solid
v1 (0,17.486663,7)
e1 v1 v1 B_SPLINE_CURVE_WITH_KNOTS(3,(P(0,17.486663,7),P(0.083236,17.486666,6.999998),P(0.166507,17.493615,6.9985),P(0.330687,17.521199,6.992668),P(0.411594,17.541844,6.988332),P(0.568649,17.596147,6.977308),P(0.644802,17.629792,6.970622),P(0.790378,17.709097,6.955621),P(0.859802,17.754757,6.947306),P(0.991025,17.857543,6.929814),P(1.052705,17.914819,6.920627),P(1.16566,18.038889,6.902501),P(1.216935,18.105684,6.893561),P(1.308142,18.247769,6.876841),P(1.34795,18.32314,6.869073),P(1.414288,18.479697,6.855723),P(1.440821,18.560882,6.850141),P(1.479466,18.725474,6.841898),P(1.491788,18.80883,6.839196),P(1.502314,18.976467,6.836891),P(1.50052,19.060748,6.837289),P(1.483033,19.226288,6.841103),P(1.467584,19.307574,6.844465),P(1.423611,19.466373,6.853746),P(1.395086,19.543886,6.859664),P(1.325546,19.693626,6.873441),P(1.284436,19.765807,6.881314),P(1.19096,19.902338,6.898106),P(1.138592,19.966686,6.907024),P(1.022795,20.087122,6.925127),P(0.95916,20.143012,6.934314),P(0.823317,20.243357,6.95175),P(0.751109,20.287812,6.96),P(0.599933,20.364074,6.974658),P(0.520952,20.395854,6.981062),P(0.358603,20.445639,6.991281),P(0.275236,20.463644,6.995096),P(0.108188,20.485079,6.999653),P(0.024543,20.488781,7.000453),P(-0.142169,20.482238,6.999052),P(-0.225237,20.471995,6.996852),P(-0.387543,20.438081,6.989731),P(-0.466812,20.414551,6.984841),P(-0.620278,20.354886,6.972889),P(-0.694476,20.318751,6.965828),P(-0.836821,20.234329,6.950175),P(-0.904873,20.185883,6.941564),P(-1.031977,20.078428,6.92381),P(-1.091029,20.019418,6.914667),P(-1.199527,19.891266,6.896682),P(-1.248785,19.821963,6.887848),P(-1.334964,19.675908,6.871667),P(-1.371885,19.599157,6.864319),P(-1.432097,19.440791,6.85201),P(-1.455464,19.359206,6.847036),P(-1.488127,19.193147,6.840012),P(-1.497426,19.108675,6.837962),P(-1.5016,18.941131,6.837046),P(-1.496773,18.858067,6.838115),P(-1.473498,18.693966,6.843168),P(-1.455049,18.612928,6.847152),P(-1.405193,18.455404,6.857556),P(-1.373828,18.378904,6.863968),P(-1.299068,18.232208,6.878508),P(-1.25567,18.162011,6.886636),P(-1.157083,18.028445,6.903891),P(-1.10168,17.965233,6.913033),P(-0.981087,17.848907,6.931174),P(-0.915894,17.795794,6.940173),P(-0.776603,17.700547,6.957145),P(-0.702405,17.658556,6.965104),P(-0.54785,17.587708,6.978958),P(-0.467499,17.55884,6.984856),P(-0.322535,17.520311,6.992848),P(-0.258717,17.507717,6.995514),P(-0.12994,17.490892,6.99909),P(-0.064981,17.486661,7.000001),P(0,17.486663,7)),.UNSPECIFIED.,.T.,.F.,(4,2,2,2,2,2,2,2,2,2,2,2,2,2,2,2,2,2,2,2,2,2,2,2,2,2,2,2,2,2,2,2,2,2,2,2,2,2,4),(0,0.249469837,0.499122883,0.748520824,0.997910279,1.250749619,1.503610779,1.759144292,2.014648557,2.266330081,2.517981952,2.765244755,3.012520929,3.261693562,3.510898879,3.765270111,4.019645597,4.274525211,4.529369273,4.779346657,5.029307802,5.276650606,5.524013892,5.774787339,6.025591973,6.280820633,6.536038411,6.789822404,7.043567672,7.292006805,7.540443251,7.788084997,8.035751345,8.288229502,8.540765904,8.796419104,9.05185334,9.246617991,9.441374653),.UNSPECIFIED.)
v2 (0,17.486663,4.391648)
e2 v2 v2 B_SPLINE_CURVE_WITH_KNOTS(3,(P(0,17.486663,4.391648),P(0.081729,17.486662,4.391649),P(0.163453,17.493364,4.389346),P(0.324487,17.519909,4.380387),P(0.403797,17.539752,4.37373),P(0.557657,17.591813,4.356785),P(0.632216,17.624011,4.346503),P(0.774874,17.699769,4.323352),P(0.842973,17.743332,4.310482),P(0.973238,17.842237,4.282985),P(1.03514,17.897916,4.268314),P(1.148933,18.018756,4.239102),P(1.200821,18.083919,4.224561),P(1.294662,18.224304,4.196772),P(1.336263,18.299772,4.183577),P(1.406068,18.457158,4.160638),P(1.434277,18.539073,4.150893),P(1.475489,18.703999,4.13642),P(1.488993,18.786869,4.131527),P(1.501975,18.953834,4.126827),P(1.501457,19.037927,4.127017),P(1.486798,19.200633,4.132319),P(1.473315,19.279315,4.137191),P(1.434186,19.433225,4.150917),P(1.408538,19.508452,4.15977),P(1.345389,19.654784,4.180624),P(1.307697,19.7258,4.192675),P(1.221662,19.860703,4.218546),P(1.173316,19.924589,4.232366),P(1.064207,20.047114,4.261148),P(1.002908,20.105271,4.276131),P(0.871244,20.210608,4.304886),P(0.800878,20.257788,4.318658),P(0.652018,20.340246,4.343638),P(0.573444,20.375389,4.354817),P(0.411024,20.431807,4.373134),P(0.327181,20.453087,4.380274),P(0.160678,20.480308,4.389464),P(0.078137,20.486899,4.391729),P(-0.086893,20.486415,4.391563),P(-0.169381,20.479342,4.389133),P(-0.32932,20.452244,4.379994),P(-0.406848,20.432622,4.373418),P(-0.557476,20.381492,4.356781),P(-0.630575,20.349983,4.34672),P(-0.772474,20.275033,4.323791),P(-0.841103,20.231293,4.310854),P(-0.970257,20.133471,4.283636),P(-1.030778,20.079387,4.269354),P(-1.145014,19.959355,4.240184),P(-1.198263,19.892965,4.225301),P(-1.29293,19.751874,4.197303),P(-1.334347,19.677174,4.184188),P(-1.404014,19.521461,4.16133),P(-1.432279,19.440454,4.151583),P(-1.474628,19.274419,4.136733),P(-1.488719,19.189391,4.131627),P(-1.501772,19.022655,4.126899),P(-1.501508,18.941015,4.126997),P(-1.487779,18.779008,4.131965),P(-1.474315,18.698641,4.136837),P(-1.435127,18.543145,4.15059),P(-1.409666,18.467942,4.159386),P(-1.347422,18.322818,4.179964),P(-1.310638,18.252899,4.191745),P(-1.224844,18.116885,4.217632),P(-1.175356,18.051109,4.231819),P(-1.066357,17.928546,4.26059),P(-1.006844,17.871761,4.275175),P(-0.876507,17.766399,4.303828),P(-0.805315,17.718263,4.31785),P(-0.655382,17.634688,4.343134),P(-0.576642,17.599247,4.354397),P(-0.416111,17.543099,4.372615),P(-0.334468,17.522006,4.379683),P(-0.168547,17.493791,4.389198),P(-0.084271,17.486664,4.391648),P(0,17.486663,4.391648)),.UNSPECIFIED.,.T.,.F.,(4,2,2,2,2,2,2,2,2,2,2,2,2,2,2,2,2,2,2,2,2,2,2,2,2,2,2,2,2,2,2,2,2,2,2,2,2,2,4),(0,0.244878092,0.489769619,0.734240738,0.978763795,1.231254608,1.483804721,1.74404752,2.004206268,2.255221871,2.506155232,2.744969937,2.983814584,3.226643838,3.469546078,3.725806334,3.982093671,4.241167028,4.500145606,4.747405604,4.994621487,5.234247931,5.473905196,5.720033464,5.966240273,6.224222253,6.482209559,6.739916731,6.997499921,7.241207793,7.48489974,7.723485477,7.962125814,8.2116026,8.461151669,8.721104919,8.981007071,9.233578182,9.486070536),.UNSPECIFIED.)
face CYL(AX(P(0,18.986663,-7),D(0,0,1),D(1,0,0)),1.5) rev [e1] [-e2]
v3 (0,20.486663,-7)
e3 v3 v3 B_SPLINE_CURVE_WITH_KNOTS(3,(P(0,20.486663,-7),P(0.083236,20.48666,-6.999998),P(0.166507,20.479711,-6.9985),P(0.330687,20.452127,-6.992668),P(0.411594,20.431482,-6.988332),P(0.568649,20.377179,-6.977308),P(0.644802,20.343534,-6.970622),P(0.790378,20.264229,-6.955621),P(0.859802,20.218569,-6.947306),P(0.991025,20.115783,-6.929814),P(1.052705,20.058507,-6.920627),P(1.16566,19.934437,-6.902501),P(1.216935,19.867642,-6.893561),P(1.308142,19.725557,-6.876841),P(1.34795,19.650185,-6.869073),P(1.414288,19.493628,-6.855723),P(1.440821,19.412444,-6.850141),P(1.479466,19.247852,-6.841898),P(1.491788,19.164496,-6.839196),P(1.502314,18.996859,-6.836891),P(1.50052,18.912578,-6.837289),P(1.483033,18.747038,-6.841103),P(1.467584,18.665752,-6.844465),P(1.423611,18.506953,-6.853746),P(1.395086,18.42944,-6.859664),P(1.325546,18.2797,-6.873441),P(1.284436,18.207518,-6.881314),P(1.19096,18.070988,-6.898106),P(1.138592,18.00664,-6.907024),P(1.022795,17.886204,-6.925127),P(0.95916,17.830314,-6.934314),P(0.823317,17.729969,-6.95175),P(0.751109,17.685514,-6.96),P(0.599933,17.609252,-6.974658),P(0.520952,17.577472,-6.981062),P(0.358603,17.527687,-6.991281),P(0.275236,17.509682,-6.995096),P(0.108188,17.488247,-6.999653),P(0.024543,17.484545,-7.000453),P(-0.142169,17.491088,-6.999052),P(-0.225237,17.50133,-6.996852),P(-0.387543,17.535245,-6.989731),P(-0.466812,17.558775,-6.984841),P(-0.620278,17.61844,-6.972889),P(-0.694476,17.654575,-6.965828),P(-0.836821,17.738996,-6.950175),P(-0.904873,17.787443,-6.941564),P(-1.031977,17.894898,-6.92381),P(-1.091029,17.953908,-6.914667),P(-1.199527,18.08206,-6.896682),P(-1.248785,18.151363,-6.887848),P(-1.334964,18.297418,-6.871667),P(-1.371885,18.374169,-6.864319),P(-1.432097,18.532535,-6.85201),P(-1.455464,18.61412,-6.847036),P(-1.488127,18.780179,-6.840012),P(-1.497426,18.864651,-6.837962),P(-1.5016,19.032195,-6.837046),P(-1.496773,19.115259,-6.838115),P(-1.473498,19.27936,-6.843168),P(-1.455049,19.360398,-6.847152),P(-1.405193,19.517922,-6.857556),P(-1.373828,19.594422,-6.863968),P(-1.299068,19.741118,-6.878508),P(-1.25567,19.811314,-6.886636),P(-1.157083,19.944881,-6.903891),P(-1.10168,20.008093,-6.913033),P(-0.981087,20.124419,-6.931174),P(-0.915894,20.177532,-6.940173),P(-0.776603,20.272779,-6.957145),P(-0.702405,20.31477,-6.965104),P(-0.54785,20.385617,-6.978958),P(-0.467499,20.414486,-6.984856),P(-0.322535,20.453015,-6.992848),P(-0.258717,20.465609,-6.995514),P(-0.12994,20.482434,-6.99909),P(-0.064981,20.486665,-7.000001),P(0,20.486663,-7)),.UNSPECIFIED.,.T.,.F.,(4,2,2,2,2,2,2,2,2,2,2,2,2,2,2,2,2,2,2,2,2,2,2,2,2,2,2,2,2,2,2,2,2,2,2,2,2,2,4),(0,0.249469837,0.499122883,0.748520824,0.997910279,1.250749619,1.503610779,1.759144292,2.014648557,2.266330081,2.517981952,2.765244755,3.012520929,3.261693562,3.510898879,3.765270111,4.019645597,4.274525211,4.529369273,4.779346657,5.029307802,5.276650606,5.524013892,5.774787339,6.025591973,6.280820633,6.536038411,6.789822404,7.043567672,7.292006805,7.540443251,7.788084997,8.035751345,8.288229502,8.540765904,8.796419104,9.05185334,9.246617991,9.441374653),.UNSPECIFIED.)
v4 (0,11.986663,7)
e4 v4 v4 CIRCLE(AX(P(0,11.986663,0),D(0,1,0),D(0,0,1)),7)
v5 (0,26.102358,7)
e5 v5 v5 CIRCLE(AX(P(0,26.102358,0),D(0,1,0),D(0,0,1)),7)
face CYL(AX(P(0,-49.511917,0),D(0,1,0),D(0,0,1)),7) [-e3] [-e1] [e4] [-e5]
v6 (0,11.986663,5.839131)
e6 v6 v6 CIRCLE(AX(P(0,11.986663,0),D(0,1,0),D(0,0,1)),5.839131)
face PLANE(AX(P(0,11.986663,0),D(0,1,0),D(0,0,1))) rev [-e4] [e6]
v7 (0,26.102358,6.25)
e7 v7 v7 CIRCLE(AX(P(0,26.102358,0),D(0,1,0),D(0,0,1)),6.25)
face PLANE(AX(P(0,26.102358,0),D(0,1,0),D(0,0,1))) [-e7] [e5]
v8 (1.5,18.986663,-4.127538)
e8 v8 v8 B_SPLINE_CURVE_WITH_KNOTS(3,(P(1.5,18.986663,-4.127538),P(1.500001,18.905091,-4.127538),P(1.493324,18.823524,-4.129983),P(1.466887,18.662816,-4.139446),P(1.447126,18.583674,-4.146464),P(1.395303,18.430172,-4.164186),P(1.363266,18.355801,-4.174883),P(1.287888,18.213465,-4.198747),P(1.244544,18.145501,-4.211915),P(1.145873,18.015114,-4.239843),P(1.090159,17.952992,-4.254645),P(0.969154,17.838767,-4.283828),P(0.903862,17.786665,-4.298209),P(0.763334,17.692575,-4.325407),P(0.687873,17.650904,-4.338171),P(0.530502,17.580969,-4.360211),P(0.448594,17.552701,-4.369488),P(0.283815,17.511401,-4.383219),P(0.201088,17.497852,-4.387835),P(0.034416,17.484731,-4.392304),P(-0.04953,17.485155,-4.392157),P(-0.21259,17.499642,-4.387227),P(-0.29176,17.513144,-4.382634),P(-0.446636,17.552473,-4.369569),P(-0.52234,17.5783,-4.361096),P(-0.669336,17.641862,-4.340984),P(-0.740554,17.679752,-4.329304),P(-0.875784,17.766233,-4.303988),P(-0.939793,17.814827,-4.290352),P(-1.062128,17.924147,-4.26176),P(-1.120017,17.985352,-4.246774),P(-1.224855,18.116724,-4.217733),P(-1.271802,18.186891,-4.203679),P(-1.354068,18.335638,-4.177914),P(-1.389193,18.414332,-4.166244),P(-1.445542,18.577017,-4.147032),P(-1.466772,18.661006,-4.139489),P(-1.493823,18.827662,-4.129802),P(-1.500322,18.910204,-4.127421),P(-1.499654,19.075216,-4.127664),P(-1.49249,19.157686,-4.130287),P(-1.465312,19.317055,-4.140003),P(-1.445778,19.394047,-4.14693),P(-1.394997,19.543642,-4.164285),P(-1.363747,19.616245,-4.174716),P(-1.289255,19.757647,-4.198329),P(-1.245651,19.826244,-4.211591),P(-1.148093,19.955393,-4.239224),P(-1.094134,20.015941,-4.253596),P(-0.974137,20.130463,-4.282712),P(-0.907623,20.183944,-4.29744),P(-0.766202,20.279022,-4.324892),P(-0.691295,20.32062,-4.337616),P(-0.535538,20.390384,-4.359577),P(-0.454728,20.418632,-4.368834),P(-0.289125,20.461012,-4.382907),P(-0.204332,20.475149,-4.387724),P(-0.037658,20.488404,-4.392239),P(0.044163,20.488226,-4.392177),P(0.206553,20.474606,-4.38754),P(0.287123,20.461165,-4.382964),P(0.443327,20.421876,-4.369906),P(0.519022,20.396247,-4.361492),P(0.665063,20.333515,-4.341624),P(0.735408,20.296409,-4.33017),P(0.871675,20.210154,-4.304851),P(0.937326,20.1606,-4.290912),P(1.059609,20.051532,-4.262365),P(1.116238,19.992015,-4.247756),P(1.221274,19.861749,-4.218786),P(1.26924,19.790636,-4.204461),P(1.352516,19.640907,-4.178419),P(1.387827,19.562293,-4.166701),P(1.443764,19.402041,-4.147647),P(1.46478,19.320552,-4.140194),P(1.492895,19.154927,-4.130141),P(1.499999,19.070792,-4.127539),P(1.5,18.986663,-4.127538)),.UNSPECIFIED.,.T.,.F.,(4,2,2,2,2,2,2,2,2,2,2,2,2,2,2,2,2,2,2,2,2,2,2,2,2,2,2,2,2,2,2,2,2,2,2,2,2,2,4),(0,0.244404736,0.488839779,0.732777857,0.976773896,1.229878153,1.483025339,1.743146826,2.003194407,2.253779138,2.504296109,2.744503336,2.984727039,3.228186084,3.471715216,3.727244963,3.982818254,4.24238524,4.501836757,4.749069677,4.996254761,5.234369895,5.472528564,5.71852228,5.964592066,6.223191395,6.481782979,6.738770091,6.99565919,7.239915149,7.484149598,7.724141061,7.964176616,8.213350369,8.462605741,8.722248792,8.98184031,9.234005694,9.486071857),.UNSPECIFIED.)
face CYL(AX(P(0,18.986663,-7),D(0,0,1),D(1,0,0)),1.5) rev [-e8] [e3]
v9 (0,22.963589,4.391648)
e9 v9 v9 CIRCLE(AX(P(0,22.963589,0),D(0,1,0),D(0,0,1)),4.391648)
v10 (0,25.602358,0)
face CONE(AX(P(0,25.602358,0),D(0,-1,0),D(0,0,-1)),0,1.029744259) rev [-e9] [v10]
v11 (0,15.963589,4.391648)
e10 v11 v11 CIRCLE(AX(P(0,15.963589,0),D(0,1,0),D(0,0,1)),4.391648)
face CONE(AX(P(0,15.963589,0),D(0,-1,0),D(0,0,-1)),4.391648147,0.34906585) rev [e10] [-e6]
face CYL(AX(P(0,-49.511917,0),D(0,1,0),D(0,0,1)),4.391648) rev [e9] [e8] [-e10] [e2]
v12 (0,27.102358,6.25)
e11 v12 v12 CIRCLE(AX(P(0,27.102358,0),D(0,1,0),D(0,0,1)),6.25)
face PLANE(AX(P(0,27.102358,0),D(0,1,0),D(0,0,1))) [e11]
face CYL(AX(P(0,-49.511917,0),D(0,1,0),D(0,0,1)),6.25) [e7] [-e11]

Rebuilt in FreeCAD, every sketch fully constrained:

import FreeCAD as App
import Part
import Sketcher
Q = App.Units.Quantity

doc = App.newDocument("Part")
params = doc.addObject("Spreadsheet::Sheet", "Params")
for row, (alias, value) in enumerate([
    ("sketch1_height", "1 mm"),
    ("sketch1_height2", "7 mm"),
    ("sketch1_height3", "1.5 mm"),
    ("sketch1_width", "6.25 mm"),
    ("revolution_angle", "360 deg"),
    ("sketch2_diameter", "3 mm"),
    ("pocket1_length", "14 mm"),
], start=1):
    params.set(f"A{row}", alias)
    params.set(f"B{row}", "=" + value)
    params.setAlias(f"B{row}", alias)

body = doc.addObject("PartDesign::Body", "Body")

# Sketch on XY plane
sketch1 = body.newObject("Sketcher::SketchObject", "Sketch")
sketch1.AttachmentSupport = (doc.getObject("XY_Plane"), [""])
sketch1.MapMode = "FlatFace"
sketch1.addGeometry([
    Part.LineSegment(App.Vector(0, 25.6, 0), App.Vector(0, 27.1, 0)),  # 0
    Part.LineSegment(App.Vector(0, 27.1, 0), App.Vector(-6.2, 27.1, 0)),  # 1
    Part.LineSegment(App.Vector(-6.2, 27.1, 0), App.Vector(-6.2, 26.1, 0)),  # 2
    Part.LineSegment(App.Vector(-6.2, 26.1, 0), App.Vector(-7, 26.1, 0)),  # 3
    Part.LineSegment(App.Vector(-7, 26.1, 0), App.Vector(-7, 12, 0)),  # 4
    Part.LineSegment(App.Vector(-7, 12, 0), App.Vector(-5.8, 12, 0)),  # 5
    Part.LineSegment(App.Vector(-5.8, 12, 0), App.Vector(-5.1, 14, 0)),  # 6
    Part.LineSegment(App.Vector(-5.1, 14, 0), App.Vector(-4.4, 16, 0)),  # 7
    Part.LineSegment(App.Vector(-4.4, 16, 0), App.Vector(-4.4, 23, 0)),  # 8
    Part.LineSegment(App.Vector(-4.4, 23, 0), App.Vector(0, 25.6, 0)),  # 9
], False)
sketch1.addConstraint([
    Sketcher.Constraint("Coincident", 0, 2, 1, 1),
    Sketcher.Constraint("Coincident", 1, 2, 2, 1),
    Sketcher.Constraint("Coincident", 2, 2, 3, 1),
    Sketcher.Constraint("Coincident", 3, 2, 4, 1),
    Sketcher.Constraint("Coincident", 4, 2, 5, 1),
    Sketcher.Constraint("Coincident", 5, 2, 6, 1),
    Sketcher.Constraint("Coincident", 6, 2, 7, 1),
    Sketcher.Constraint("Coincident", 7, 2, 8, 1),
    Sketcher.Constraint("Coincident", 8, 2, 9, 1),
    Sketcher.Constraint("Coincident", 9, 2, 0, 1),
    Sketcher.Constraint("Vertical", 0),
    Sketcher.Constraint("Horizontal", 1),
    Sketcher.Constraint("Vertical", 2),
    Sketcher.Constraint("Horizontal", 3),
    Sketcher.Constraint("Vertical", 4),
    Sketcher.Constraint("Horizontal", 5),
    Sketcher.Constraint("Vertical", 8),
    Sketcher.Constraint("PointOnObject", 0, 2, -2),
    Sketcher.Constraint("Parallel", 6, 7),
    Sketcher.Constraint("DistanceY", 2, 2, 2, 1, 1.0),
    Sketcher.Constraint("DistanceY", 8, 1, 8, 2, 7.0),
    Sketcher.Constraint("Angle", 6, Q("70 deg")),
    Sketcher.Constraint("Angle", 9, Q("31 deg")),
    Sketcher.Constraint("DistanceY", 0, 1, 0, 2, 1.5),
    Sketcher.Constraint("DistanceX", 3, 2, -1, 1, 7.0),
    Sketcher.Constraint("DistanceX", 1, 2, 1, 1, 6.25),
    Sketcher.Constraint("DistanceX", 5, 1, 5, 2, 1.160869),
    Sketcher.Constraint("Distance", 7, 2.106341),
    Sketcher.Constraint("DistanceY", 4, 2, 4, 1, 14.115695),
    Sketcher.Constraint("DistanceY", -1, 1, 7, 2, 15.963589),
])
sketch1.setExpression("Constraints[19]", "Params.sketch1_height")
sketch1.setExpression("Constraints[20]", "Params.sketch1_height2")
sketch1.setExpression("Constraints[23]", "Params.sketch1_height3")
sketch1.setExpression("Constraints[25]", "Params.sketch1_width")
revolution = body.newObject("PartDesign::Revolution", "Revolution")
revolution.Profile = sketch1
revolution.ReferenceAxis = (sketch1, ["V_Axis"])
revolution.setExpression("Angle", "Params.revolution_angle")

# Sketch on XY plane
sketch2 = body.newObject("Sketcher::SketchObject", "Sketch001")
sketch2.AttachmentSupport = (doc.getObject("XY_Plane"), [""])
sketch2.MapMode = "FlatFace"
sketch2.addGeometry(Part.Circle(App.Vector(0, 19, 0), App.Vector(0, 0, 1), 1.5), False)
sketch2.addConstraint([
    Sketcher.Constraint("PointOnObject", 0, 3, -2),
    Sketcher.Constraint("Diameter", 0, 3.0),
    Sketcher.Constraint("DistanceY", -1, 1, 0, 3, 18.986663),
])
sketch2.setExpression("Constraints[1]", "Params.sketch2_diameter")
pocket1 = body.newObject("PartDesign::Pocket", "Pocket")
pocket1.Profile = sketch2
pocket1.setExpression("Length", "Params.pocket1_length")
pocket1.Midplane = True

doc.recompute()
